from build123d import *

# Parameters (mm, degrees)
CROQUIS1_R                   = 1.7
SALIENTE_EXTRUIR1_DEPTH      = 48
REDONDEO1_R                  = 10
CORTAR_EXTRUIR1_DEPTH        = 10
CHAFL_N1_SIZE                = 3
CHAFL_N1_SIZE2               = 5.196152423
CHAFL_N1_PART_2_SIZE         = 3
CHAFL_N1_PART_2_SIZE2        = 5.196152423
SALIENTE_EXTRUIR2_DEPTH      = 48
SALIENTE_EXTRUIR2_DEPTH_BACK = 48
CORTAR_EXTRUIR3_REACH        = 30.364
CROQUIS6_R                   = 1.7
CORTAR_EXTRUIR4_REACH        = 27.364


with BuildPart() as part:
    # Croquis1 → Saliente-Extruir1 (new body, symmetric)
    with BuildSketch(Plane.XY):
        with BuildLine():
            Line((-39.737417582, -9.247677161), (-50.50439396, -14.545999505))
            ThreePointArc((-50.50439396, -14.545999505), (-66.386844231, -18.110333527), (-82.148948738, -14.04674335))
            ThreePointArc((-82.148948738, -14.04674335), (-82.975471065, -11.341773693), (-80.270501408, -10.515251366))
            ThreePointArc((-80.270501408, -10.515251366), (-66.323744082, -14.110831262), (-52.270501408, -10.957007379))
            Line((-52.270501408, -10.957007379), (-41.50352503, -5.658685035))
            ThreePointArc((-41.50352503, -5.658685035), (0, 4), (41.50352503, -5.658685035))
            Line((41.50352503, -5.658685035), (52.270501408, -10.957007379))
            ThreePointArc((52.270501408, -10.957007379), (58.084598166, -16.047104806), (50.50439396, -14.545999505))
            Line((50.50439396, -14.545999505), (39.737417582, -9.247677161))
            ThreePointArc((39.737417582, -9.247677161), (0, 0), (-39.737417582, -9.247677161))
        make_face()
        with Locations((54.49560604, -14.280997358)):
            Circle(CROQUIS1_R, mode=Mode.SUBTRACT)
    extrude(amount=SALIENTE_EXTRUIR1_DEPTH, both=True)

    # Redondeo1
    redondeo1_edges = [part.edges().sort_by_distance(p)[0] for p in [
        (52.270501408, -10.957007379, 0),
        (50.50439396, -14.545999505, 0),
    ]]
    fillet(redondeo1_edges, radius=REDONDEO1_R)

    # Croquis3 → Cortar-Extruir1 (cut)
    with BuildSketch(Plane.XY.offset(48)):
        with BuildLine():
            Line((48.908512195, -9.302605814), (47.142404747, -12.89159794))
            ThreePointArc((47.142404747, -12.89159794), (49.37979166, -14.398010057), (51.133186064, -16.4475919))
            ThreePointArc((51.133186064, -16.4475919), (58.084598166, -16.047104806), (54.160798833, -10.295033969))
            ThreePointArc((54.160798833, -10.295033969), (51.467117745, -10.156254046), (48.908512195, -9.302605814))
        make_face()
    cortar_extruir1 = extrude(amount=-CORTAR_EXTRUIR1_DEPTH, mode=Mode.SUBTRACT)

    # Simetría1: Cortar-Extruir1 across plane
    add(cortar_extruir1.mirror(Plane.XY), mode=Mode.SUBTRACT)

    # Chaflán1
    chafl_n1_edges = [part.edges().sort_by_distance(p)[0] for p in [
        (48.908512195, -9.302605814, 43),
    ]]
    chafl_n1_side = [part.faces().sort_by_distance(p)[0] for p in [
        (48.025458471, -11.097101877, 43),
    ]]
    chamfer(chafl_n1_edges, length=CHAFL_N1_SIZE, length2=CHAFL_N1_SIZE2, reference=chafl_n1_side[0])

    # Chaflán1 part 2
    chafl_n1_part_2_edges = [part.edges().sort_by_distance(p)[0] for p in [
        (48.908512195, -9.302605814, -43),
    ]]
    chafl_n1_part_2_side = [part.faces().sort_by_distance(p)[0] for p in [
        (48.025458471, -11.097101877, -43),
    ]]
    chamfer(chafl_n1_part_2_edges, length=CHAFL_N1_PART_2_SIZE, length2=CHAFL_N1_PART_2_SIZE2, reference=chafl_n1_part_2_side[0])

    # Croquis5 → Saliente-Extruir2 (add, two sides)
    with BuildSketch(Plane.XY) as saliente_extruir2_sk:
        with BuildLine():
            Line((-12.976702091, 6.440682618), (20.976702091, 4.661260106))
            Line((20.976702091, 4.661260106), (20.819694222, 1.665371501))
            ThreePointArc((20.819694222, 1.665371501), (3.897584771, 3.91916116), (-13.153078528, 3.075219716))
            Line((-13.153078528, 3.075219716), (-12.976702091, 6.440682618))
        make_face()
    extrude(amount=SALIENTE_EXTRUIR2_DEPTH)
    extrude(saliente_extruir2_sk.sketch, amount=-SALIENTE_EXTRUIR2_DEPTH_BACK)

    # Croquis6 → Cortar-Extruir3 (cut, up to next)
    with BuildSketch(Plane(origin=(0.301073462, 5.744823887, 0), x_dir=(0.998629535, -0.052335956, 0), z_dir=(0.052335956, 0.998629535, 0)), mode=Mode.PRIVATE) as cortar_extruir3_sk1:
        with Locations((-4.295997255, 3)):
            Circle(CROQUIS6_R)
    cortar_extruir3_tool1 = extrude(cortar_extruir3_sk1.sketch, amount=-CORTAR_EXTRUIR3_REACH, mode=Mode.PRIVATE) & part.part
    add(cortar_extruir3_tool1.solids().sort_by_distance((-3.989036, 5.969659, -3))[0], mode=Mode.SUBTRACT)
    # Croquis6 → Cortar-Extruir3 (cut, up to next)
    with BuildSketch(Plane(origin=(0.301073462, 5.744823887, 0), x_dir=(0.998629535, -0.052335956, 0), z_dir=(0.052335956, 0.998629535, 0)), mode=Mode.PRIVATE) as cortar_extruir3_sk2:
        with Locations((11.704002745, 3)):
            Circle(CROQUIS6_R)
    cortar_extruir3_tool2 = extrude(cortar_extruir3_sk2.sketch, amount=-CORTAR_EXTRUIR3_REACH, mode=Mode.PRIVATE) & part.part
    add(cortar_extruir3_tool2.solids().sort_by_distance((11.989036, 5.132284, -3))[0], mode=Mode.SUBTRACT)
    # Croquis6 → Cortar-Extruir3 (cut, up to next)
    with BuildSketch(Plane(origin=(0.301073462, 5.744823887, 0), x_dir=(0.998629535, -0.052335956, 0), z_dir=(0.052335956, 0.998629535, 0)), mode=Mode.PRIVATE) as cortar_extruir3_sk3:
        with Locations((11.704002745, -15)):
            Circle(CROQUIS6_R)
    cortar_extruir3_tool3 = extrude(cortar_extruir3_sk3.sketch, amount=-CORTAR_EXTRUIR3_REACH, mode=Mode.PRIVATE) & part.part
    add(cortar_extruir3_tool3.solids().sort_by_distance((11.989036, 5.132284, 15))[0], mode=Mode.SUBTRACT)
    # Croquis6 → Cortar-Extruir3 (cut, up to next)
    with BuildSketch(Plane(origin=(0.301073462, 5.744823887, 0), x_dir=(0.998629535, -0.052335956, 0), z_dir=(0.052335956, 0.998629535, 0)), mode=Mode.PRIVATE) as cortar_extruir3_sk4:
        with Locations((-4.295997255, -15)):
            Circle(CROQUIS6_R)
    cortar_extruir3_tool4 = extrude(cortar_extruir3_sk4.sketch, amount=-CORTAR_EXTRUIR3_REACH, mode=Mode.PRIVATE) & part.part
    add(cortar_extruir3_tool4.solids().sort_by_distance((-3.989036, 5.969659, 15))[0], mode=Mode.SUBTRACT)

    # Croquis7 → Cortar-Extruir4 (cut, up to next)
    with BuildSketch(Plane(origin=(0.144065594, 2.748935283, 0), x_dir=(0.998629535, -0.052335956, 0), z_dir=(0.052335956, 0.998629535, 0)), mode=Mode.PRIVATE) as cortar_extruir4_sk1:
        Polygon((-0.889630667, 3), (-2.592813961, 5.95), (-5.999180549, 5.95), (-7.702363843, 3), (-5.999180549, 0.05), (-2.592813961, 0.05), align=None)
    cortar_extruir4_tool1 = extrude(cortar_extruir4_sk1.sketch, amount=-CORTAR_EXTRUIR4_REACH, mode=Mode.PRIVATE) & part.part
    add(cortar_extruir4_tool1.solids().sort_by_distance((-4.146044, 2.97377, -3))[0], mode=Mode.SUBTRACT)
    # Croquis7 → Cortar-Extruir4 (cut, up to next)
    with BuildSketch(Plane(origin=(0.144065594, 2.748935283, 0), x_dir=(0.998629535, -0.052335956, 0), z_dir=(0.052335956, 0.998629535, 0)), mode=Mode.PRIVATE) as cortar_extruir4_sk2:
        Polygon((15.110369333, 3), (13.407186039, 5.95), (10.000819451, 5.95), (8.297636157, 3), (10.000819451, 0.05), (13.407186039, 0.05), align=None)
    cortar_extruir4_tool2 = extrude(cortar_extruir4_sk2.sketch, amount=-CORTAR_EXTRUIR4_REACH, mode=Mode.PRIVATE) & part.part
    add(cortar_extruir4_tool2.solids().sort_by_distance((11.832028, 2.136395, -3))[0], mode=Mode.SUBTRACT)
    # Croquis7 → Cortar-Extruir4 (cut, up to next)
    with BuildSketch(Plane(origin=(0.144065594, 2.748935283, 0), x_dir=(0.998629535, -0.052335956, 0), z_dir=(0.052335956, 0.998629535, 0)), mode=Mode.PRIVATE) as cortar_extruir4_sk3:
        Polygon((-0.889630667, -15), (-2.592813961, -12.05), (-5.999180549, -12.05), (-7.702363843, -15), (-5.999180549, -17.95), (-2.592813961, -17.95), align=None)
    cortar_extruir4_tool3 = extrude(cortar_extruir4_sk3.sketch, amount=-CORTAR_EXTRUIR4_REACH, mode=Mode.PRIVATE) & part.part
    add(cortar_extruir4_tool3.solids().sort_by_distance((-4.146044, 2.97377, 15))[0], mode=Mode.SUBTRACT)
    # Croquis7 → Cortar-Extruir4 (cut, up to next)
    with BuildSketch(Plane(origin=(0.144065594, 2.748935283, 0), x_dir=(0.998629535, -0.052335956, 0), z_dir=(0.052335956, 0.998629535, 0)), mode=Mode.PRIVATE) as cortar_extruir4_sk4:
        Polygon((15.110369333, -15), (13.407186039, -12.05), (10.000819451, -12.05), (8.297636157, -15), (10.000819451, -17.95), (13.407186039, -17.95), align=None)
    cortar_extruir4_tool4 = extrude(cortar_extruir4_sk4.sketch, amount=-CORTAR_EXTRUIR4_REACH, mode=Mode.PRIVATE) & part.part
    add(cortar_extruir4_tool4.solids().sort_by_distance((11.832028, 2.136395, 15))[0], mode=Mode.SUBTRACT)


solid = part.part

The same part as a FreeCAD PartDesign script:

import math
import FreeCAD as App
import Part
import Sketcher
from FreeCAD import Vector
Q = App.Units.Quantity


def edges_at(feature, points):
    """Names of the edges that pass closest to the given points."""
    edges = feature.Shape.Edges
    near = lambda p: min(range(len(edges)), key=lambda i: edges[i].distToShape(Part.Vertex(*p))[0])
    return sorted({f"Edge{near(p) + 1}" for p in points})

doc = App.newDocument("Part")
body = doc.addObject("PartDesign::Body", "Body")

# Sketch on XY plane
sketch1 = body.newObject("Sketcher::SketchObject", "Sketch")
sketch1.AttachmentSupport = (doc.getObject("XY_Plane"), [""])
sketch1.MapMode = "FlatFace"
sketch1.addGeometry([
    Part.LineSegment(Vector(-50.5, -14.5, 0), Vector(-39.7, -9.2, 0)),  # 0
    Part.ArcOfCircle(Part.Circle(Vector(0, -90, 0), Vector(0, 0, 1), 90), math.radians(64), math.radians(116)),  # 1
    Part.LineSegment(Vector(39.7, -9.2, 0), Vector(50.5, -14.5, 0)),  # 2
    Part.ArcOfCircle(Part.Circle(Vector(54.5, -14.3, 0), Vector(0, 0, 1), 4), math.radians(-176), math.radians(124)),  # 3
    Part.LineSegment(Vector(52.3, -11, 0), Vector(41.5, -5.7, 0)),  # 4
    Part.ArcOfCircle(Part.Circle(Vector(0, -90, 0), Vector(0, 0, 1), 94), math.radians(64), math.radians(116)),  # 5
    Part.LineSegment(Vector(-41.5, -5.7, 0), Vector(-52.3, -11, 0)),  # 6
    Part.ArcOfCircle(Part.Circle(Vector(-65.8, 16.6, 0), Vector(0, 0, 1), 30.7), math.radians(-118), math.radians(-64)),  # 7
    Part.ArcOfCircle(Part.Circle(Vector(-81.2, -12.3, 0), Vector(0, 0, 1), 2), math.radians(62), math.radians(242)),  # 8
    Part.ArcOfCircle(Part.Circle(Vector(-65.8, 16.6, 0), Vector(0, 0, 1), 34.7), math.radians(-118), math.radians(-64)),  # 9
    Part.Circle(Vector(54.5, -14.3, 0), Vector(0, 0, 1), 1.7),  # 10
], False)
sketch1.addConstraint([
    Sketcher.Constraint("Tangent", 0, 2, 1, 2),
    Sketcher.Constraint("Tangent", 1, 1, 2, 1),
    Sketcher.Constraint("Coincident", 2, 2, 3, 1),
    Sketcher.Constraint("Coincident", 3, 2, 4, 1),
    Sketcher.Constraint("Tangent", 4, 2, 5, 1),
    Sketcher.Constraint("Tangent", 5, 2, 6, 1),
    Sketcher.Constraint("Tangent", 6, 2, 7, 2),
    Sketcher.Constraint("Tangent", 7, 1, 8, 1),
    Sketcher.Constraint("Tangent", 8, 2, 9, 1),
    Sketcher.Constraint("Tangent", 9, 2, 0, 1),
    Sketcher.Constraint("Coincident", 5, 3, 1, 3),
    Sketcher.Constraint("Coincident", 9, 3, 7, 3),
    Sketcher.Constraint("Coincident", 10, 3, 3, 3),
    Sketcher.Constraint("Symmetric", 0, 2, 1, 1, -2),
    Sketcher.Constraint("Symmetric", 3, 2, 6, 2, -2),
    Sketcher.Constraint("Parallel", 2, 4),
    Sketcher.Constraint("Horizontal", 2, 2, 9, 2),
    Sketcher.Constraint("Radius", 1, 90.0),
    Sketcher.Constraint("Radius", 3, 4.0),
    Sketcher.Constraint("Radius", 5, 94.0),
    Sketcher.Constraint("Diameter", 10, 3.4),
    Sketcher.Constraint("Distance", 0, 12.0),
    Sketcher.Constraint("DistanceY", 1, 3, -1, 1, 90.0),
    Sketcher.Constraint("DistanceY", 3, 3, 8, 3, 2.0),
    Sketcher.Constraint("DistanceX", 7, 1, 6, 2, 28.0),
    Sketcher.Constraint("DistanceY", 2, 2, -1, 1, 14.546),
])
pad1 = body.newObject("PartDesign::Pad", "Pad")
pad1.Profile = sketch1
pad1.Length = 96
pad1.Midplane = True
doc.recompute()

fillet = body.newObject("PartDesign::Fillet", "Fillet")
fillet.Base = (pad1, edges_at(pad1, [(52.271, -10.957, 0), (50.504, -14.546, 0)]))
fillet.Radius = 10

# Sketch on XY plane
sketch2 = body.newObject("Sketcher::SketchObject", "Sketch001")
sketch2.AttachmentSupport = (doc.getObject("XY_Plane"), [""])
sketch2.MapMode = "FlatFace"
sketch2.AttachmentOffset = App.Placement(Vector(0, 0, 48), App.Rotation())
sketch2.addGeometry([
    Part.LineSegment(Vector(48.9, -9.3, 0), Vector(47.1, -12.9, 0)),
    Part.ArcOfCircle(Part.Circle(Vector(42.7, -21.9, 0), Vector(0, 0, 1), 10), math.radians(33), math.radians(64)),
    Part.ArcOfCircle(Part.Circle(Vector(54.5, -14.3, 0), Vector(0, 0, 1), 4), math.radians(-147), math.radians(95)),
    Part.ArcOfCircle(Part.Circle(Vector(53.3, -0.3, 0), Vector(0, 0, 1), 10), math.radians(-116), math.radians(-85)),
], False)
sketch2.addConstraint([
    Sketcher.Constraint("Coincident", 0, 2, 1, 2),
    Sketcher.Constraint("Tangent", 1, 1, 2, 1),
    Sketcher.Constraint("Tangent", 2, 2, 3, 2),
    Sketcher.Constraint("Coincident", 3, 1, 0, 1),
    Sketcher.Constraint("Equal", 1, 3),
    Sketcher.Constraint("Radius", 1, 10.0),
    Sketcher.Constraint("Radius", 2, 4.0),
    Sketcher.Constraint("Distance", 0, 4.0),
    Sketcher.Constraint("DistanceX", -1, 1, 2, 2, 54.160799),
    Sketcher.Constraint("DistanceX", 0, 2, 2, 3, 7.353201),
    Sketcher.Constraint("DistanceY", 2, 3, 0, 2, 1.389399),
    Sketcher.Constraint("DistanceY", 1, 3, -1, 1, 21.864078),
    Sketcher.Constraint("DistanceY", 2, 2, 3, 1, 0.992428),
])
pocket1 = body.newObject("PartDesign::Pocket", "Pocket")
pocket1.Profile = sketch2
pocket1.Length = 10
doc.recompute()

mirrored = body.newObject("PartDesign::Mirrored", "Mirrored")
mirrored.Originals = [pocket1]
mirrored.MirrorPlane = (doc.getObject("XY_Plane"), [""])
body.Tip = mirrored
doc.recompute()

chamfer = body.newObject("PartDesign::Chamfer", "Chamfer")
chamfer.Base = (mirrored, edges_at(mirrored, [(48.909, -9.303, 43)]))
chamfer.ChamferType = "Two distances"
chamfer.Size = 3
chamfer.Size2 = 5.196152
doc.recompute()

chamfer2 = body.newObject("PartDesign::Chamfer", "Chamfer001")
chamfer2.Base = (chamfer, edges_at(chamfer, [(48.909, -9.303, -43)]))
chamfer2.ChamferType = "Two distances"
chamfer2.Size = 3
chamfer2.Size2 = 5.196152
chamfer2.FlipDirection = True

# Sketch on XY plane
sketch3 = body.newObject("Sketcher::SketchObject", "Sketch002")
sketch3.AttachmentSupport = (doc.getObject("XY_Plane"), [""])
sketch3.MapMode = "FlatFace"
sketch3.addGeometry([
    Part.LineSegment(Vector(21, 4.7, 0), Vector(-13, 6.4, 0)),
    Part.LineSegment(Vector(-13, 6.4, 0), Vector(-13.2, 3.1, 0)),
    Part.ArcOfCircle(Part.Circle(Vector(0, -90, 0), Vector(0, 0, 1), 94), math.radians(77), math.radians(98)),
    Part.LineSegment(Vector(20.8, 1.7, 0), Vector(21, 4.7, 0)),
], False)
sketch3.addConstraint([
    Sketcher.Constraint("Coincident", 0, 2, 1, 1),
    Sketcher.Constraint("Coincident", 1, 2, 2, 2),
    Sketcher.Constraint("Coincident", 2, 1, 3, 1),
    Sketcher.Constraint("Coincident", 3, 2, 0, 1),
    Sketcher.Constraint("PointOnObject", 2, 3, -2),
    Sketcher.Constraint("Perpendicular", 0, 1),
    Sketcher.Constraint("Parallel", 1, 3),
    Sketcher.Constraint("Radius", 2, 94.0),
    Sketcher.Constraint("Angle", 0, Q("177 deg")),
    Sketcher.Constraint("Distance", 0, 34.0),
    Sketcher.Constraint("Distance", 3, 3.0),
    Sketcher.Constraint("DistanceY", 2, 3, -1, 1, 90.0),
    Sketcher.Constraint("Distance", 1, 3.370081),
])
pad2 = body.newObject("PartDesign::Pad", "Pad001")
pad2.Profile = sketch3
pad2.Type = "TwoLengths"
pad2.Length = 48
pad2.Length2 = 48

# Sketch on an angled plane
sketch4 = body.newObject("Sketcher::SketchObject", "Sketch003")
sketch4.Placement = App.Placement(Vector(0.301073, 5.744824, 0), App.Rotation(Vector(0.998629535, -0.052335956, 0), Vector(0, 0, -1), Vector(0.052335956, 0.998629535, 0), "ZXY"))
sketch4.addGeometry(Part.Circle(Vector(-4.3, 3, 0), Vector(0, 0, 1), 1.7), False)
sketch4.addConstraint([
    Sketcher.Constraint("Diameter", 0, 3.4),
    Sketcher.Constraint("DistanceY", -1, 1, 0, 3, 3.0),
    Sketcher.Constraint("DistanceX", 0, 3, -1, 1, 4.295997),
])
pocket2 = body.newObject("PartDesign::Pocket", "Pocket001")
pocket2.Profile = sketch4
pocket2.Type = "UpToFirst"

# Sketch on an angled plane
sketch5 = body.newObject("Sketcher::SketchObject", "Sketch004")
sketch5.Placement = App.Placement(Vector(0.301073, 5.744824, 0), App.Rotation(Vector(0.998629535, -0.052335956, 0), Vector(0, 0, -1), Vector(0.052335956, 0.998629535, 0), "ZXY"))
sketch5.addGeometry(Part.Circle(Vector(11.7, 3, 0), Vector(0, 0, 1), 1.7), False)
sketch5.addConstraint([
    Sketcher.Constraint("Diameter", 0, 3.4),
    Sketcher.Constraint("DistanceY", -1, 1, 0, 3, 3.0),
    Sketcher.Constraint("DistanceX", -1, 1, 0, 3, 11.704003),
])
pocket3 = body.newObject("PartDesign::Pocket", "Pocket002")
pocket3.Profile = sketch5
pocket3.Type = "UpToFirst"

# Sketch on an angled plane
sketch6 = body.newObject("Sketcher::SketchObject", "Sketch005")
sketch6.Placement = App.Placement(Vector(0.301073, 5.744824, 0), App.Rotation(Vector(0.998629535, -0.052335956, 0), Vector(0, 0, -1), Vector(0.052335956, 0.998629535, 0), "ZXY"))
sketch6.addGeometry(Part.Circle(Vector(11.7, -15, 0), Vector(0, 0, 1), 1.7), False)
sketch6.addConstraint([
    Sketcher.Constraint("Diameter", 0, 3.4),
    Sketcher.Constraint("DistanceY", 0, 3, -1, 1, 15.0),
    Sketcher.Constraint("DistanceX", -1, 1, 0, 3, 11.704003),
])
pocket4 = body.newObject("PartDesign::Pocket", "Pocket003")
pocket4.Profile = sketch6
pocket4.Type = "UpToFirst"

# Sketch on an angled plane
sketch7 = body.newObject("Sketcher::SketchObject", "Sketch006")
sketch7.Placement = App.Placement(Vector(0.301073, 5.744824, 0), App.Rotation(Vector(0.998629535, -0.052335956, 0), Vector(0, 0, -1), Vector(0.052335956, 0.998629535, 0), "ZXY"))
sketch7.addGeometry(Part.Circle(Vector(-4.3, -15, 0), Vector(0, 0, 1), 1.7), False)
sketch7.addConstraint([
    Sketcher.Constraint("Diameter", 0, 3.4),
    Sketcher.Constraint("DistanceY", 0, 3, -1, 1, 15.0),
    Sketcher.Constraint("DistanceX", 0, 3, -1, 1, 4.295997),
])
pocket5 = body.newObject("PartDesign::Pocket", "Pocket004")
pocket5.Profile = sketch7
pocket5.Type = "UpToFirst"

# Sketch on an angled plane
sketch8 = body.newObject("Sketcher::SketchObject", "Sketch007")
sketch8.Placement = App.Placement(Vector(0.144066, 2.748935, 0), App.Rotation(Vector(0.998629535, -0.052335956, 0), Vector(0, 0, -1), Vector(0.052335956, 0.998629535, 0), "ZXY"))
sketch8.addGeometry([
    Part.LineSegment(Vector(-0.9, 3, 0), Vector(-2.6, 6, 0)),  # 0
    Part.LineSegment(Vector(-2.6, 6, 0), Vector(-6, 6, 0)),  # 1
    Part.LineSegment(Vector(-6, 6, 0), Vector(-7.7, 3, 0)),  # 2
    Part.LineSegment(Vector(-7.7, 3, 0), Vector(-6, 0.1, 0)),  # 3
    Part.LineSegment(Vector(-6, 0.1, 0), Vector(-2.6, 0.1, 0)),  # 4
    Part.LineSegment(Vector(-2.6, 0.1, 0), Vector(-0.9, 3, 0)),  # 5
], False)
sketch8.addConstraint([
    Sketcher.Constraint("Coincident", 0, 2, 1, 1),
    Sketcher.Constraint("Coincident", 1, 2, 2, 1),
    Sketcher.Constraint("Coincident", 2, 2, 3, 1),
    Sketcher.Constraint("Coincident", 3, 2, 4, 1),
    Sketcher.Constraint("Coincident", 4, 2, 5, 1),
    Sketcher.Constraint("Coincident", 5, 2, 0, 1),
    Sketcher.Constraint("Horizontal", 1),
    Sketcher.Constraint("Horizontal", 4),
    Sketcher.Constraint("Parallel", 0, 3),
    Sketcher.Constraint("Parallel", 2, 5),
    Sketcher.Constraint("Horizontal", 2, 2, 5, 2),
    Sketcher.Constraint("Vertical", 1, 2, 3, 2),
    Sketcher.Constraint("Vertical", 0, 2, 4, 2),
    Sketcher.Constraint("Angle", 0, Q("120 deg")),
    Sketcher.Constraint("DistanceY", -1, 1, 2, 2, 3.0),
    Sketcher.Constraint("DistanceY", 3, 2, 1, 2, 5.9),
    Sketcher.Constraint("DistanceX", 1, 2, 1, 1, 3.406367),
    Sketcher.Constraint("DistanceX", 1, 2, -1, 1, 5.999181),
])
pocket6 = body.newObject("PartDesign::Pocket", "Pocket005")
pocket6.Profile = sketch8
pocket6.Length = 3.489435

# Sketch on an angled plane
sketch9 = body.newObject("Sketcher::SketchObject", "Sketch008")
sketch9.Placement = App.Placement(Vector(0.144066, 2.748935, 0), App.Rotation(Vector(0.998629535, -0.052335956, 0), Vector(0, 0, -1), Vector(0.052335956, 0.998629535, 0), "ZXY"))
sketch9.addGeometry([
    Part.LineSegment(Vector(15.1, 3, 0), Vector(13.4, 6, 0)),  # 0
    Part.LineSegment(Vector(13.4, 6, 0), Vector(10, 6, 0)),  # 1
    Part.LineSegment(Vector(10, 6, 0), Vector(8.3, 3, 0)),  # 2
    Part.LineSegment(Vector(8.3, 3, 0), Vector(10, 0.1, 0)),  # 3
    Part.LineSegment(Vector(10, 0.1, 0), Vector(13.4, 0.1, 0)),  # 4
    Part.LineSegment(Vector(13.4, 0.1, 0), Vector(15.1, 3, 0)),  # 5
], False)
sketch9.addConstraint([
    Sketcher.Constraint("Coincident", 0, 2, 1, 1),
    Sketcher.Constraint("Coincident", 1, 2, 2, 1),
    Sketcher.Constraint("Coincident", 2, 2, 3, 1),
    Sketcher.Constraint("Coincident", 3, 2, 4, 1),
    Sketcher.Constraint("Coincident", 4, 2, 5, 1),
    Sketcher.Constraint("Coincident", 5, 2, 0, 1),
    Sketcher.Constraint("Horizontal", 1),
    Sketcher.Constraint("Horizontal", 4),
    Sketcher.Constraint("Parallel", 0, 3),
    Sketcher.Constraint("Parallel", 2, 5),
    Sketcher.Constraint("Horizontal", 2, 2, 5, 2),
    Sketcher.Constraint("Vertical", 1, 2, 3, 2),
    Sketcher.Constraint("Vertical", 0, 2, 4, 2),
    Sketcher.Constraint("Angle", 0, Q("120 deg")),
    Sketcher.Constraint("DistanceY", -1, 1, 2, 2, 3.0),
    Sketcher.Constraint("DistanceY", 3, 2, 1, 2, 5.9),
    Sketcher.Constraint("DistanceX", 1, 2, 1, 1, 3.406367),
    Sketcher.Constraint("DistanceX", -1, 1, 1, 2, 10.000819),
])
pocket7 = body.newObject("PartDesign::Pocket", "Pocket006")
pocket7.Profile = sketch9
pocket7.Length = 3.23229

# Sketch on an angled plane
sketch10 = body.newObject("Sketcher::SketchObject", "Sketch009")
sketch10.Placement = App.Placement(Vector(0.144066, 2.748935, 0), App.Rotation(Vector(0.998629535, -0.052335956, 0), Vector(0, 0, -1), Vector(0.052335956, 0.998629535, 0), "ZXY"))
sketch10.addGeometry([
    Part.LineSegment(Vector(-0.9, -15, 0), Vector(-2.6, -12.1, 0)),  # 0
    Part.LineSegment(Vector(-2.6, -12.1, 0), Vector(-6, -12.1, 0)),  # 1
    Part.LineSegment(Vector(-6, -12.1, 0), Vector(-7.7, -15, 0)),  # 2
    Part.LineSegment(Vector(-7.7, -15, 0), Vector(-6, -18, 0)),  # 3
    Part.LineSegment(Vector(-6, -18, 0), Vector(-2.6, -18, 0)),  # 4
    Part.LineSegment(Vector(-2.6, -18, 0), Vector(-0.9, -15, 0)),  # 5
], False)
sketch10.addConstraint([
    Sketcher.Constraint("Coincident", 0, 2, 1, 1),
    Sketcher.Constraint("Coincident", 1, 2, 2, 1),
    Sketcher.Constraint("Coincident", 2, 2, 3, 1),
    Sketcher.Constraint("Coincident", 3, 2, 4, 1),
    Sketcher.Constraint("Coincident", 4, 2, 5, 1),
    Sketcher.Constraint("Coincident", 5, 2, 0, 1),
    Sketcher.Constraint("Horizontal", 1),
    Sketcher.Constraint("Horizontal", 4),
    Sketcher.Constraint("Parallel", 0, 3),
    Sketcher.Constraint("Parallel", 2, 5),
    Sketcher.Constraint("Horizontal", 2, 2, 5, 2),
    Sketcher.Constraint("Vertical", 1, 2, 3, 2),
    Sketcher.Constraint("Vertical", 0, 2, 4, 2),
    Sketcher.Constraint("Angle", 0, Q("120 deg")),
    Sketcher.Constraint("DistanceY", 2, 2, -1, 1, 15.0),
    Sketcher.Constraint("DistanceY", 3, 2, 1, 2, 5.9),
    Sketcher.Constraint("DistanceX", 1, 2, 1, 1, 3.406367),
    Sketcher.Constraint("DistanceX", 1, 2, -1, 1, 5.999181),
])
pocket8 = body.newObject("PartDesign::Pocket", "Pocket007")
pocket8.Profile = sketch10
pocket8.Length = 3.489435

# Sketch on an angled plane
sketch11 = body.newObject("Sketcher::SketchObject", "Sketch010")
sketch11.Placement = App.Placement(Vector(0.144066, 2.748935, 0), App.Rotation(Vector(0.998629535, -0.052335956, 0), Vector(0, 0, -1), Vector(0.052335956, 0.998629535, 0), "ZXY"))
sketch11.addGeometry([
    Part.LineSegment(Vector(15.1, -15, 0), Vector(13.4, -12.1, 0)),  # 0
    Part.LineSegment(Vector(13.4, -12.1, 0), Vector(10, -12.1, 0)),  # 1
    Part.LineSegment(Vector(10, -12.1, 0), Vector(8.3, -15, 0)),  # 2
    Part.LineSegment(Vector(8.3, -15, 0), Vector(10, -18, 0)),  # 3
    Part.LineSegment(Vector(10, -18, 0), Vector(13.4, -18, 0)),  # 4
    Part.LineSegment(Vector(13.4, -18, 0), Vector(15.1, -15, 0)),  # 5
], False)
sketch11.addConstraint([
    Sketcher.Constraint("Coincident", 0, 2, 1, 1),
    Sketcher.Constraint("Coincident", 1, 2, 2, 1),
    Sketcher.Constraint("Coincident", 2, 2, 3, 1),
    Sketcher.Constraint("Coincident", 3, 2, 4, 1),
    Sketcher.Constraint("Coincident", 4, 2, 5, 1),
    Sketcher.Constraint("Coincident", 5, 2, 0, 1),
    Sketcher.Constraint("Horizontal", 1),
    Sketcher.Constraint("Horizontal", 4),
    Sketcher.Constraint("Parallel", 0, 3),
    Sketcher.Constraint("Parallel", 2, 5),
    Sketcher.Constraint("Horizontal", 2, 2, 5, 2),
    Sketcher.Constraint("Vertical", 1, 2, 3, 2),
    Sketcher.Constraint("Vertical", 0, 2, 4, 2),
    Sketcher.Constraint("Angle", 0, Q("120 deg")),
    Sketcher.Constraint("DistanceY", 2, 2, -1, 1, 15.0),
    Sketcher.Constraint("DistanceY", 3, 2, 1, 2, 5.9),
    Sketcher.Constraint("DistanceX", 1, 2, 1, 1, 3.406367),
    Sketcher.Constraint("DistanceX", -1, 1, 1, 2, 10.000819),
])
pocket9 = body.newObject("PartDesign::Pocket", "Pocket008")
pocket9.Profile = sketch11
pocket9.Length = 3.23229

doc.recompute()
